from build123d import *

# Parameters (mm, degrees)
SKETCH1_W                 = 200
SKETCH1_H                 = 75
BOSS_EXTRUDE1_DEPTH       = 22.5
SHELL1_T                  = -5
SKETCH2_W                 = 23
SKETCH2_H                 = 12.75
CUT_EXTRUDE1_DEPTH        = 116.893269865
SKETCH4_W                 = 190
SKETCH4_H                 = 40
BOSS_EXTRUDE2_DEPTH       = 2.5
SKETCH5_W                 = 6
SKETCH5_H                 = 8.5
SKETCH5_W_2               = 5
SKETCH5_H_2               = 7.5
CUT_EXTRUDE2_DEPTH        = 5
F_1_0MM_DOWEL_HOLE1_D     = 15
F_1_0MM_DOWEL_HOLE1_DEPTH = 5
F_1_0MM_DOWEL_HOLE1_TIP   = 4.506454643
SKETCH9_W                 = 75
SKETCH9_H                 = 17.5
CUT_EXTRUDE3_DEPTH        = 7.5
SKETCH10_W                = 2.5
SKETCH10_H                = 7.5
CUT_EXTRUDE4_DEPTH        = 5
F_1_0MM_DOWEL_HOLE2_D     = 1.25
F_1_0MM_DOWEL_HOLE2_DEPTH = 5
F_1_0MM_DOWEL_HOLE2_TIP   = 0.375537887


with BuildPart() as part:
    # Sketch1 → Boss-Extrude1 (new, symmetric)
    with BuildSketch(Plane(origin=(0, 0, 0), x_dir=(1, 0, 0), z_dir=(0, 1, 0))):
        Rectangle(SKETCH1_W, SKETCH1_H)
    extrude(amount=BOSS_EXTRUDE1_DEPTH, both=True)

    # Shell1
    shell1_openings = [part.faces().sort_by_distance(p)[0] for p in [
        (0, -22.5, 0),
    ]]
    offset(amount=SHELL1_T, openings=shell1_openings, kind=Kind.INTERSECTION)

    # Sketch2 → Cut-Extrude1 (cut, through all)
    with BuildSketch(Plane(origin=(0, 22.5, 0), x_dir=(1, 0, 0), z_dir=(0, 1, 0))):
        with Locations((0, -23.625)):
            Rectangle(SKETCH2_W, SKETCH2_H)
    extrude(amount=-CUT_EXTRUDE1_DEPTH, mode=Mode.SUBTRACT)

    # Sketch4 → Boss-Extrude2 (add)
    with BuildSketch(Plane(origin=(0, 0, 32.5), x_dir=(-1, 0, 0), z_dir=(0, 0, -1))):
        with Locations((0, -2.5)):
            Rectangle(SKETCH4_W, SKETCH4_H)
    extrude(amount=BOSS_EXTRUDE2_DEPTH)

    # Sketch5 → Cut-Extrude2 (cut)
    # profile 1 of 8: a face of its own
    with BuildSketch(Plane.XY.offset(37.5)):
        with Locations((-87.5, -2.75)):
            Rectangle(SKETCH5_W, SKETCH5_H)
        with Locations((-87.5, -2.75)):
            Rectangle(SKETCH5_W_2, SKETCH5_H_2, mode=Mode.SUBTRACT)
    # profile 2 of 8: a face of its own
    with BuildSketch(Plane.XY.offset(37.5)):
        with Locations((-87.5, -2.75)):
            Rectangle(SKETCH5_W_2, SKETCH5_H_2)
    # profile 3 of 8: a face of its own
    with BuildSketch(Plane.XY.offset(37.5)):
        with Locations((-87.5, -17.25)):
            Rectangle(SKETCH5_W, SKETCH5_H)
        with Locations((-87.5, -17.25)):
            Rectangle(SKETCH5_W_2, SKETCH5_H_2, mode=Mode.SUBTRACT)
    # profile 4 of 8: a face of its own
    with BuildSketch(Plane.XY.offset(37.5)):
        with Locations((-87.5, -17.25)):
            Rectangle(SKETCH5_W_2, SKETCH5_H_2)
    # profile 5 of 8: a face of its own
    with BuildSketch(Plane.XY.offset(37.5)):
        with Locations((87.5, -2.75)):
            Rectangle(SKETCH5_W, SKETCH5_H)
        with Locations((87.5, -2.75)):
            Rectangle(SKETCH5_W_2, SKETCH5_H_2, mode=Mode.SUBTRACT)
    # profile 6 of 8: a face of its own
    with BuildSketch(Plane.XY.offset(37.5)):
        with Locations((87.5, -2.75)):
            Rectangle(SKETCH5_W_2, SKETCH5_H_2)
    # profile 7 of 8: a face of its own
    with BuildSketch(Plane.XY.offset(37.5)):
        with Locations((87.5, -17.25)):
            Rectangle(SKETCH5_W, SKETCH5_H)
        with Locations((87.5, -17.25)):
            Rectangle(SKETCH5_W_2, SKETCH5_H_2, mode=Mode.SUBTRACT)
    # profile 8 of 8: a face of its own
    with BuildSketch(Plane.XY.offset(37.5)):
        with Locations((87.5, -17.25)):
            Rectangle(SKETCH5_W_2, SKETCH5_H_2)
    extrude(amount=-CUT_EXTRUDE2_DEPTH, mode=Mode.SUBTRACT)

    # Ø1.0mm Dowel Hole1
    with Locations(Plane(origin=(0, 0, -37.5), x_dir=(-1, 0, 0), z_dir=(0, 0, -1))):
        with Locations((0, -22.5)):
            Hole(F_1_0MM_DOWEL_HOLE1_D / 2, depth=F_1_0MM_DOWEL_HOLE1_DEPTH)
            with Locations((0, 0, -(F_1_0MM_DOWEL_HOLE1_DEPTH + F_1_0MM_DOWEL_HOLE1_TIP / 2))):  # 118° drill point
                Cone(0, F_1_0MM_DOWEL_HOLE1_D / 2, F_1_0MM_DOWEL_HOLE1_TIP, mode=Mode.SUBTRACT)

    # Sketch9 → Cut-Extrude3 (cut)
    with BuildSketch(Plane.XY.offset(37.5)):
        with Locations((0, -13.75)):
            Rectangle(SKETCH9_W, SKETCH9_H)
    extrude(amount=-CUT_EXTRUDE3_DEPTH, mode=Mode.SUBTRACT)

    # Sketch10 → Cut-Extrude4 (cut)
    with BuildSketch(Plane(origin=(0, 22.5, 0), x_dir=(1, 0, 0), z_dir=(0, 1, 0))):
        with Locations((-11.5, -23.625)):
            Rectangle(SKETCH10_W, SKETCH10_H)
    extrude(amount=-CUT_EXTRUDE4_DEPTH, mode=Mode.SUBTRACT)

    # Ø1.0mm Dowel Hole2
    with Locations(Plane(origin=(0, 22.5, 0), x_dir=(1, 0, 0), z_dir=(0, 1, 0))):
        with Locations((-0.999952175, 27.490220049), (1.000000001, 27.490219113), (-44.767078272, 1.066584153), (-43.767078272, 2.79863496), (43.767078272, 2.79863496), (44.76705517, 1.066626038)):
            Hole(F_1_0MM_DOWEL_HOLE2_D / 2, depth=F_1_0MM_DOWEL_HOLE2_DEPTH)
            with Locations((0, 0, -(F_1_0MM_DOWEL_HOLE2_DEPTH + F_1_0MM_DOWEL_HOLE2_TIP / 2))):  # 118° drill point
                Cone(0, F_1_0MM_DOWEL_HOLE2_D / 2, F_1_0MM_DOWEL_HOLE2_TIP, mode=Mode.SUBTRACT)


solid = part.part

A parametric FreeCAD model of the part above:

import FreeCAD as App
import Part
import Sketcher

V = App.Vector


def faces_at(feature, points):
    """Names of the faces that lie closest to the given points."""
    faces = feature.Shape.Faces
    near = lambda p: min(range(len(faces)), key=lambda i: faces[i].distToShape(Part.Vertex(*p))[0])
    return sorted({f"Face{near(p) + 1}" for p in points})


def add_polygon(sketch, points):
    """Adds a closed chain of lines whose ends are joined by coincident constraints."""
    first, n = sketch.GeometryCount, len(points)
    for a, b in zip(points, points[1:] + points[:1]):
        sketch.addGeometry(Part.LineSegment(App.Vector(*a, 0), App.Vector(*b, 0)), False)
    for i in range(n):
        sketch.addConstraint(Sketcher.Constraint("Coincident", first + i, 2, first + (i + 1) % n, 1))

doc = App.newDocument("Part")
body = doc.addObject("PartDesign::Body", "Body")

# Sketch on XZ plane
sketch1 = body.newObject("Sketcher::SketchObject", "Sketch")
sketch1.AttachmentSupport = (doc.getObject("XZ_Plane"), [""])
sketch1.MapMode = "FlatFace"
add_polygon(sketch1, [(-100, -38), (-100, 38), (100, 38), (100, -38)])  # lines 0-3
sketch1.addConstraint([
    Sketcher.Constraint("Vertical", 0),
    Sketcher.Constraint("Horizontal", 1),
    Sketcher.Constraint("Vertical", 2),
    Sketcher.Constraint("Horizontal", 3),
    Sketcher.Constraint("Symmetric", 0, 2, 2, 2, -1, 1),
    Sketcher.Constraint("DistanceX", 1, 1, 1, 2, 200.0),
    Sketcher.Constraint("DistanceY", 0, 1, 0, 2, 75.0),
])
pad1 = body.newObject("PartDesign::Pad", "Pad")
pad1.Profile = sketch1
pad1.Length = 45
pad1.Midplane = True
doc.recompute()

thickness = body.newObject("PartDesign::Thickness", "Thickness")
thickness.Base = (pad1, faces_at(pad1, [(0, -22.5, 0)]))
thickness.Value = 5
thickness.Reversed = True
thickness.Join = "Intersection"

# Sketch on XZ plane
sketch2 = body.newObject("Sketcher::SketchObject", "Sketch001")
sketch2.AttachmentSupport = (doc.getObject("XZ_Plane"), [""])
sketch2.MapMode = "FlatFace"
sketch2.AttachmentOffset = App.Placement(V(0, 0, -22.5), App.Rotation())
add_polygon(sketch2, [(-12, 17), (-12, 30), (12, 30), (12, 17)])  # lines 0-3
sketch2.addConstraint([
    Sketcher.Constraint("Vertical", 0),
    Sketcher.Constraint("Horizontal", 1),
    Sketcher.Constraint("Vertical", 2),
    Sketcher.Constraint("Horizontal", 3),
    Sketcher.Constraint("DistanceX", 1, 1, 1, 2, 23.0),
    Sketcher.Constraint("DistanceY", -1, 1, 0, 2, 30.0),
    Sketcher.Constraint("DistanceY", 0, 1, 0, 2, 12.75),
    Sketcher.Constraint("DistanceX", 0, 2, -1, 1, 11.5),
])
pocket1 = body.newObject("PartDesign::Pocket", "Pocket")
pocket1.Profile = sketch2
pocket1.Type = "ThroughAll"
pocket1.Reversed = True

# Sketch on XY plane
sketch3 = body.newObject("Sketcher::SketchObject", "Sketch002")
sketch3.AttachmentSupport = (doc.getObject("XY_Plane"), [""])
sketch3.MapMode = "FlatFace"
sketch3.AttachmentOffset = App.Placement(V(0, 0, 32.5), App.Rotation())
add_polygon(sketch3, [(95, 18), (95, -22), (-95, -22), (-95, 18)])  # lines 0-3
sketch3.addConstraint([
    Sketcher.Constraint("Vertical", 0),
    Sketcher.Constraint("Horizontal", 1),
    Sketcher.Constraint("Vertical", 2),
    Sketcher.Constraint("Horizontal", 3),
    Sketcher.Constraint("DistanceX", 1, 2, 1, 1, 190.0),
    Sketcher.Constraint("DistanceY", 0, 2, 0, 1, 40.0),
    Sketcher.Constraint("DistanceX", -1, 1, 0, 2, 95.0),
    Sketcher.Constraint("DistanceY", 0, 2, -1, 1, 22.5),
])
pad2 = body.newObject("PartDesign::Pad", "Pad001")
pad2.Profile = sketch3
pad2.Length = 2.5
pad2.Reversed = True

# Sketch on XY plane
sketch4 = body.newObject("Sketcher::SketchObject", "Sketch003")
sketch4.AttachmentSupport = (doc.getObject("XY_Plane"), [""])
sketch4.MapMode = "FlatFace"
sketch4.AttachmentOffset = App.Placement(V(0, 0, 37.5), App.Rotation())
add_polygon(sketch4, [(-90, 2), (-90, -7), (-84, -7), (-84, 2)])  # lines 0-3
add_polygon(sketch4, [(-90, -13), (-90, -22), (-84, -22), (-84, -13)])  # lines 4-7
add_polygon(sketch4, [(84, 2), (84, -7), (90, -7), (90, 2)])  # lines 8-11
add_polygon(sketch4, [(84, -13), (84, -22), (90, -22), (90, -13)])  # lines 12-15
sketch4.addConstraint([
    Sketcher.Constraint("Vertical", 0),
    Sketcher.Constraint("Horizontal", 1),
    Sketcher.Constraint("Vertical", 2),
    Sketcher.Constraint("Horizontal", 3),
    Sketcher.Constraint("Vertical", 4),
    Sketcher.Constraint("Horizontal", 5),
    Sketcher.Constraint("Vertical", 6),
    Sketcher.Constraint("Horizontal", 7),
    Sketcher.Constraint("Vertical", 8),
    Sketcher.Constraint("Horizontal", 9),
    Sketcher.Constraint("Vertical", 10),
    Sketcher.Constraint("Horizontal", 11),
    Sketcher.Constraint("Vertical", 12),
    Sketcher.Constraint("Horizontal", 13),
    Sketcher.Constraint("Vertical", 14),
    Sketcher.Constraint("Horizontal", 15),
    Sketcher.Constraint("Symmetric", 1, 2, 8, 2, -2),
    Sketcher.Constraint("Symmetric", 3, 2, 10, 2, -2),
    Sketcher.Constraint("Symmetric", 5, 2, 12, 2, -2),
    Sketcher.Constraint("Symmetric", 7, 2, 14, 2, -2),
    Sketcher.Constraint("Vertical", 3, 2, 4, 2),
    Sketcher.Constraint("Vertical", 2, 2, 5, 2),
    Sketcher.Constraint("Equal", 2, 4),
    Sketcher.Constraint("DistanceX", 1, 1, 1, 2, 6.0),
    Sketcher.Constraint("DistanceY", 0, 2, 0, 1, 8.5),
    Sketcher.Constraint("DistanceY", 0, 2, -1, 1, 7.0),
    Sketcher.Constraint("DistanceY", 6, 2, -1, 1, 13.0),
    Sketcher.Constraint("DistanceX", 1, 2, 8, 2, 169.0),
])
pocket2 = body.newObject("PartDesign::Pocket", "Pocket001")
pocket2.Profile = sketch4
pocket2.Length = 5

# Sketch on XY plane
sketch5 = body.newObject("Sketcher::SketchObject", "Sketch004")
sketch5.AttachmentSupport = (doc.getObject("XY_Plane"), [""])
sketch5.MapMode = "FlatFace"
sketch5.AttachmentOffset = App.Placement(V(0, 0, -37.5), App.Rotation())
sketch5.addGeometry(Part.Circle(V(0, -22, 0), V(0, 0, 1), 8), False)
sketch5.addConstraint([
    Sketcher.Constraint("PointOnObject", 0, 3, -2),
    Sketcher.Constraint("Diameter", 0, 15.0),
    Sketcher.Constraint("DistanceY", 0, 3, -1, 1, 22.5),
])
doc.recompute()
hole = body.newObject("PartDesign::Hole", "Hole")
hole.Profile = sketch5
hole.ThreadType = "None"
hole.Diameter = 15
hole.DepthType = "Dimension"
hole.Depth = 5
hole.DrillPoint = "Angled"
hole.DrillPointAngle = 118
hole.Reversed = True

# Sketch on XY plane
sketch6 = body.newObject("Sketcher::SketchObject", "Sketch005")
sketch6.AttachmentSupport = (doc.getObject("XY_Plane"), [""])
sketch6.MapMode = "FlatFace"
sketch6.AttachmentOffset = App.Placement(V(0, 0, 37.5), App.Rotation())
add_polygon(sketch6, [(-38, -5), (-38, -22), (38, -22), (38, -5)])  # lines 0-3
sketch6.addConstraint([
    Sketcher.Constraint("Vertical", 0),
    Sketcher.Constraint("Horizontal", 1),
    Sketcher.Constraint("Vertical", 2),
    Sketcher.Constraint("Horizontal", 3),
    Sketcher.Constraint("DistanceX", 1, 1, 1, 2, 75.0),
    Sketcher.Constraint("DistanceY", 0, 2, 0, 1, 17.5),
    Sketcher.Constraint("DistanceY", 2, 2, -1, 1, 5.0),
    Sketcher.Constraint("DistanceX", 0, 2, -1, 1, 37.5),
])
pocket3 = body.newObject("PartDesign::Pocket", "Pocket002")
pocket3.Profile = sketch6
pocket3.Length = 7.5

# Sketch on XZ plane
sketch7 = body.newObject("Sketcher::SketchObject", "Sketch006")
sketch7.AttachmentSupport = (doc.getObject("XZ_Plane"), [""])
sketch7.MapMode = "FlatFace"
sketch7.AttachmentOffset = App.Placement(V(0, 0, -22.5), App.Rotation())
add_polygon(sketch7, [(-12.8, 19.9), (-12.8, 27.4), (-10.2, 27.4), (-10.2, 19.9)])  # lines 0-3
sketch7.addConstraint([
    Sketcher.Constraint("Vertical", 0),
    Sketcher.Constraint("Horizontal", 1),
    Sketcher.Constraint("Vertical", 2),
    Sketcher.Constraint("Horizontal", 3),
    Sketcher.Constraint("DistanceX", 1, 1, 1, 2, 2.5),
    Sketcher.Constraint("DistanceY", 0, 1, 0, 2, 7.5),
    Sketcher.Constraint("DistanceX", 0, 2, -1, 1, 12.75),
    Sketcher.Constraint("DistanceY", -1, 1, 0, 2, 27.375),
])
pocket4 = body.newObject("PartDesign::Pocket", "Pocket003")
pocket4.Profile = sketch7
pocket4.Length = 5
pocket4.Reversed = True

# Sketch on XZ plane
sketch8 = body.newObject("Sketcher::SketchObject", "Sketch007")
sketch8.AttachmentSupport = (doc.getObject("XZ_Plane"), [""])
sketch8.MapMode = "FlatFace"
sketch8.AttachmentOffset = App.Placement(V(0, 0, -22.5), App.Rotation())
sketch8.addGeometry([
    Part.Circle(V(-1, -27.5, 0), V(0, 0, 1), 0.6),  # 0
    Part.Circle(V(1, -27.5, 0), V(0, 0, 1), 0.6),  # 1
    Part.Circle(V(-44.8, -1.1, 0), V(0, 0, 1), 0.6),  # 2
    Part.Circle(V(-43.8, -2.8, 0), V(0, 0, 1), 0.6),  # 3
    Part.Circle(V(43.8, -2.8, 0), V(0, 0, 1), 0.6),  # 4
    Part.Circle(V(44.8, -1.1, 0), V(0, 0, 1), 0.6),  # 5
], False)
sketch8.addConstraint([
    Sketcher.Constraint("Equal", 0, 1),
    Sketcher.Constraint("Equal", 1, 2),
    Sketcher.Constraint("Equal", 2, 3),
    Sketcher.Constraint("Equal", 3, 4),
    Sketcher.Constraint("Equal", 4, 5),
    Sketcher.Constraint("Symmetric", 3, 3, 4, 3, -2),
    Sketcher.Constraint("Horizontal", 0, 3, 1, 3),
    Sketcher.Constraint("Diameter", 0, 1.25),
    Sketcher.Constraint("DistanceX", -1, 1, 1, 3, 1.0),
    Sketcher.Constraint("DistanceX", 2, 3, 3, 3, 1.0),
    Sketcher.Constraint("DistanceY", 0, 3, -1, 1, 27.49022),
    Sketcher.Constraint("DistanceX", 2, 3, -1, 1, 44.767078),
    Sketcher.Constraint("DistanceY", 3, 3, 2, 3, 1.732051),
    Sketcher.Constraint("DistanceX", 0, 3, 4, 3, 44.76703),
    Sketcher.Constraint("DistanceY", 4, 3, 5, 3, 1.732009),
    Sketcher.Constraint("DistanceY", 2, 3, -1, 1, 1.066584),
    Sketcher.Constraint("DistanceX", -1, 1, 5, 3, 44.767055),
])
doc.recompute()
hole2 = body.newObject("PartDesign::Hole", "Hole001")
hole2.Profile = sketch8
hole2.ThreadType = "None"
hole2.Diameter = 1.25
hole2.DepthType = "Dimension"
hole2.Depth = 5
hole2.DrillPoint = "Angled"
hole2.DrillPointAngle = 118
hole2.Reversed = True

doc.recompute()
